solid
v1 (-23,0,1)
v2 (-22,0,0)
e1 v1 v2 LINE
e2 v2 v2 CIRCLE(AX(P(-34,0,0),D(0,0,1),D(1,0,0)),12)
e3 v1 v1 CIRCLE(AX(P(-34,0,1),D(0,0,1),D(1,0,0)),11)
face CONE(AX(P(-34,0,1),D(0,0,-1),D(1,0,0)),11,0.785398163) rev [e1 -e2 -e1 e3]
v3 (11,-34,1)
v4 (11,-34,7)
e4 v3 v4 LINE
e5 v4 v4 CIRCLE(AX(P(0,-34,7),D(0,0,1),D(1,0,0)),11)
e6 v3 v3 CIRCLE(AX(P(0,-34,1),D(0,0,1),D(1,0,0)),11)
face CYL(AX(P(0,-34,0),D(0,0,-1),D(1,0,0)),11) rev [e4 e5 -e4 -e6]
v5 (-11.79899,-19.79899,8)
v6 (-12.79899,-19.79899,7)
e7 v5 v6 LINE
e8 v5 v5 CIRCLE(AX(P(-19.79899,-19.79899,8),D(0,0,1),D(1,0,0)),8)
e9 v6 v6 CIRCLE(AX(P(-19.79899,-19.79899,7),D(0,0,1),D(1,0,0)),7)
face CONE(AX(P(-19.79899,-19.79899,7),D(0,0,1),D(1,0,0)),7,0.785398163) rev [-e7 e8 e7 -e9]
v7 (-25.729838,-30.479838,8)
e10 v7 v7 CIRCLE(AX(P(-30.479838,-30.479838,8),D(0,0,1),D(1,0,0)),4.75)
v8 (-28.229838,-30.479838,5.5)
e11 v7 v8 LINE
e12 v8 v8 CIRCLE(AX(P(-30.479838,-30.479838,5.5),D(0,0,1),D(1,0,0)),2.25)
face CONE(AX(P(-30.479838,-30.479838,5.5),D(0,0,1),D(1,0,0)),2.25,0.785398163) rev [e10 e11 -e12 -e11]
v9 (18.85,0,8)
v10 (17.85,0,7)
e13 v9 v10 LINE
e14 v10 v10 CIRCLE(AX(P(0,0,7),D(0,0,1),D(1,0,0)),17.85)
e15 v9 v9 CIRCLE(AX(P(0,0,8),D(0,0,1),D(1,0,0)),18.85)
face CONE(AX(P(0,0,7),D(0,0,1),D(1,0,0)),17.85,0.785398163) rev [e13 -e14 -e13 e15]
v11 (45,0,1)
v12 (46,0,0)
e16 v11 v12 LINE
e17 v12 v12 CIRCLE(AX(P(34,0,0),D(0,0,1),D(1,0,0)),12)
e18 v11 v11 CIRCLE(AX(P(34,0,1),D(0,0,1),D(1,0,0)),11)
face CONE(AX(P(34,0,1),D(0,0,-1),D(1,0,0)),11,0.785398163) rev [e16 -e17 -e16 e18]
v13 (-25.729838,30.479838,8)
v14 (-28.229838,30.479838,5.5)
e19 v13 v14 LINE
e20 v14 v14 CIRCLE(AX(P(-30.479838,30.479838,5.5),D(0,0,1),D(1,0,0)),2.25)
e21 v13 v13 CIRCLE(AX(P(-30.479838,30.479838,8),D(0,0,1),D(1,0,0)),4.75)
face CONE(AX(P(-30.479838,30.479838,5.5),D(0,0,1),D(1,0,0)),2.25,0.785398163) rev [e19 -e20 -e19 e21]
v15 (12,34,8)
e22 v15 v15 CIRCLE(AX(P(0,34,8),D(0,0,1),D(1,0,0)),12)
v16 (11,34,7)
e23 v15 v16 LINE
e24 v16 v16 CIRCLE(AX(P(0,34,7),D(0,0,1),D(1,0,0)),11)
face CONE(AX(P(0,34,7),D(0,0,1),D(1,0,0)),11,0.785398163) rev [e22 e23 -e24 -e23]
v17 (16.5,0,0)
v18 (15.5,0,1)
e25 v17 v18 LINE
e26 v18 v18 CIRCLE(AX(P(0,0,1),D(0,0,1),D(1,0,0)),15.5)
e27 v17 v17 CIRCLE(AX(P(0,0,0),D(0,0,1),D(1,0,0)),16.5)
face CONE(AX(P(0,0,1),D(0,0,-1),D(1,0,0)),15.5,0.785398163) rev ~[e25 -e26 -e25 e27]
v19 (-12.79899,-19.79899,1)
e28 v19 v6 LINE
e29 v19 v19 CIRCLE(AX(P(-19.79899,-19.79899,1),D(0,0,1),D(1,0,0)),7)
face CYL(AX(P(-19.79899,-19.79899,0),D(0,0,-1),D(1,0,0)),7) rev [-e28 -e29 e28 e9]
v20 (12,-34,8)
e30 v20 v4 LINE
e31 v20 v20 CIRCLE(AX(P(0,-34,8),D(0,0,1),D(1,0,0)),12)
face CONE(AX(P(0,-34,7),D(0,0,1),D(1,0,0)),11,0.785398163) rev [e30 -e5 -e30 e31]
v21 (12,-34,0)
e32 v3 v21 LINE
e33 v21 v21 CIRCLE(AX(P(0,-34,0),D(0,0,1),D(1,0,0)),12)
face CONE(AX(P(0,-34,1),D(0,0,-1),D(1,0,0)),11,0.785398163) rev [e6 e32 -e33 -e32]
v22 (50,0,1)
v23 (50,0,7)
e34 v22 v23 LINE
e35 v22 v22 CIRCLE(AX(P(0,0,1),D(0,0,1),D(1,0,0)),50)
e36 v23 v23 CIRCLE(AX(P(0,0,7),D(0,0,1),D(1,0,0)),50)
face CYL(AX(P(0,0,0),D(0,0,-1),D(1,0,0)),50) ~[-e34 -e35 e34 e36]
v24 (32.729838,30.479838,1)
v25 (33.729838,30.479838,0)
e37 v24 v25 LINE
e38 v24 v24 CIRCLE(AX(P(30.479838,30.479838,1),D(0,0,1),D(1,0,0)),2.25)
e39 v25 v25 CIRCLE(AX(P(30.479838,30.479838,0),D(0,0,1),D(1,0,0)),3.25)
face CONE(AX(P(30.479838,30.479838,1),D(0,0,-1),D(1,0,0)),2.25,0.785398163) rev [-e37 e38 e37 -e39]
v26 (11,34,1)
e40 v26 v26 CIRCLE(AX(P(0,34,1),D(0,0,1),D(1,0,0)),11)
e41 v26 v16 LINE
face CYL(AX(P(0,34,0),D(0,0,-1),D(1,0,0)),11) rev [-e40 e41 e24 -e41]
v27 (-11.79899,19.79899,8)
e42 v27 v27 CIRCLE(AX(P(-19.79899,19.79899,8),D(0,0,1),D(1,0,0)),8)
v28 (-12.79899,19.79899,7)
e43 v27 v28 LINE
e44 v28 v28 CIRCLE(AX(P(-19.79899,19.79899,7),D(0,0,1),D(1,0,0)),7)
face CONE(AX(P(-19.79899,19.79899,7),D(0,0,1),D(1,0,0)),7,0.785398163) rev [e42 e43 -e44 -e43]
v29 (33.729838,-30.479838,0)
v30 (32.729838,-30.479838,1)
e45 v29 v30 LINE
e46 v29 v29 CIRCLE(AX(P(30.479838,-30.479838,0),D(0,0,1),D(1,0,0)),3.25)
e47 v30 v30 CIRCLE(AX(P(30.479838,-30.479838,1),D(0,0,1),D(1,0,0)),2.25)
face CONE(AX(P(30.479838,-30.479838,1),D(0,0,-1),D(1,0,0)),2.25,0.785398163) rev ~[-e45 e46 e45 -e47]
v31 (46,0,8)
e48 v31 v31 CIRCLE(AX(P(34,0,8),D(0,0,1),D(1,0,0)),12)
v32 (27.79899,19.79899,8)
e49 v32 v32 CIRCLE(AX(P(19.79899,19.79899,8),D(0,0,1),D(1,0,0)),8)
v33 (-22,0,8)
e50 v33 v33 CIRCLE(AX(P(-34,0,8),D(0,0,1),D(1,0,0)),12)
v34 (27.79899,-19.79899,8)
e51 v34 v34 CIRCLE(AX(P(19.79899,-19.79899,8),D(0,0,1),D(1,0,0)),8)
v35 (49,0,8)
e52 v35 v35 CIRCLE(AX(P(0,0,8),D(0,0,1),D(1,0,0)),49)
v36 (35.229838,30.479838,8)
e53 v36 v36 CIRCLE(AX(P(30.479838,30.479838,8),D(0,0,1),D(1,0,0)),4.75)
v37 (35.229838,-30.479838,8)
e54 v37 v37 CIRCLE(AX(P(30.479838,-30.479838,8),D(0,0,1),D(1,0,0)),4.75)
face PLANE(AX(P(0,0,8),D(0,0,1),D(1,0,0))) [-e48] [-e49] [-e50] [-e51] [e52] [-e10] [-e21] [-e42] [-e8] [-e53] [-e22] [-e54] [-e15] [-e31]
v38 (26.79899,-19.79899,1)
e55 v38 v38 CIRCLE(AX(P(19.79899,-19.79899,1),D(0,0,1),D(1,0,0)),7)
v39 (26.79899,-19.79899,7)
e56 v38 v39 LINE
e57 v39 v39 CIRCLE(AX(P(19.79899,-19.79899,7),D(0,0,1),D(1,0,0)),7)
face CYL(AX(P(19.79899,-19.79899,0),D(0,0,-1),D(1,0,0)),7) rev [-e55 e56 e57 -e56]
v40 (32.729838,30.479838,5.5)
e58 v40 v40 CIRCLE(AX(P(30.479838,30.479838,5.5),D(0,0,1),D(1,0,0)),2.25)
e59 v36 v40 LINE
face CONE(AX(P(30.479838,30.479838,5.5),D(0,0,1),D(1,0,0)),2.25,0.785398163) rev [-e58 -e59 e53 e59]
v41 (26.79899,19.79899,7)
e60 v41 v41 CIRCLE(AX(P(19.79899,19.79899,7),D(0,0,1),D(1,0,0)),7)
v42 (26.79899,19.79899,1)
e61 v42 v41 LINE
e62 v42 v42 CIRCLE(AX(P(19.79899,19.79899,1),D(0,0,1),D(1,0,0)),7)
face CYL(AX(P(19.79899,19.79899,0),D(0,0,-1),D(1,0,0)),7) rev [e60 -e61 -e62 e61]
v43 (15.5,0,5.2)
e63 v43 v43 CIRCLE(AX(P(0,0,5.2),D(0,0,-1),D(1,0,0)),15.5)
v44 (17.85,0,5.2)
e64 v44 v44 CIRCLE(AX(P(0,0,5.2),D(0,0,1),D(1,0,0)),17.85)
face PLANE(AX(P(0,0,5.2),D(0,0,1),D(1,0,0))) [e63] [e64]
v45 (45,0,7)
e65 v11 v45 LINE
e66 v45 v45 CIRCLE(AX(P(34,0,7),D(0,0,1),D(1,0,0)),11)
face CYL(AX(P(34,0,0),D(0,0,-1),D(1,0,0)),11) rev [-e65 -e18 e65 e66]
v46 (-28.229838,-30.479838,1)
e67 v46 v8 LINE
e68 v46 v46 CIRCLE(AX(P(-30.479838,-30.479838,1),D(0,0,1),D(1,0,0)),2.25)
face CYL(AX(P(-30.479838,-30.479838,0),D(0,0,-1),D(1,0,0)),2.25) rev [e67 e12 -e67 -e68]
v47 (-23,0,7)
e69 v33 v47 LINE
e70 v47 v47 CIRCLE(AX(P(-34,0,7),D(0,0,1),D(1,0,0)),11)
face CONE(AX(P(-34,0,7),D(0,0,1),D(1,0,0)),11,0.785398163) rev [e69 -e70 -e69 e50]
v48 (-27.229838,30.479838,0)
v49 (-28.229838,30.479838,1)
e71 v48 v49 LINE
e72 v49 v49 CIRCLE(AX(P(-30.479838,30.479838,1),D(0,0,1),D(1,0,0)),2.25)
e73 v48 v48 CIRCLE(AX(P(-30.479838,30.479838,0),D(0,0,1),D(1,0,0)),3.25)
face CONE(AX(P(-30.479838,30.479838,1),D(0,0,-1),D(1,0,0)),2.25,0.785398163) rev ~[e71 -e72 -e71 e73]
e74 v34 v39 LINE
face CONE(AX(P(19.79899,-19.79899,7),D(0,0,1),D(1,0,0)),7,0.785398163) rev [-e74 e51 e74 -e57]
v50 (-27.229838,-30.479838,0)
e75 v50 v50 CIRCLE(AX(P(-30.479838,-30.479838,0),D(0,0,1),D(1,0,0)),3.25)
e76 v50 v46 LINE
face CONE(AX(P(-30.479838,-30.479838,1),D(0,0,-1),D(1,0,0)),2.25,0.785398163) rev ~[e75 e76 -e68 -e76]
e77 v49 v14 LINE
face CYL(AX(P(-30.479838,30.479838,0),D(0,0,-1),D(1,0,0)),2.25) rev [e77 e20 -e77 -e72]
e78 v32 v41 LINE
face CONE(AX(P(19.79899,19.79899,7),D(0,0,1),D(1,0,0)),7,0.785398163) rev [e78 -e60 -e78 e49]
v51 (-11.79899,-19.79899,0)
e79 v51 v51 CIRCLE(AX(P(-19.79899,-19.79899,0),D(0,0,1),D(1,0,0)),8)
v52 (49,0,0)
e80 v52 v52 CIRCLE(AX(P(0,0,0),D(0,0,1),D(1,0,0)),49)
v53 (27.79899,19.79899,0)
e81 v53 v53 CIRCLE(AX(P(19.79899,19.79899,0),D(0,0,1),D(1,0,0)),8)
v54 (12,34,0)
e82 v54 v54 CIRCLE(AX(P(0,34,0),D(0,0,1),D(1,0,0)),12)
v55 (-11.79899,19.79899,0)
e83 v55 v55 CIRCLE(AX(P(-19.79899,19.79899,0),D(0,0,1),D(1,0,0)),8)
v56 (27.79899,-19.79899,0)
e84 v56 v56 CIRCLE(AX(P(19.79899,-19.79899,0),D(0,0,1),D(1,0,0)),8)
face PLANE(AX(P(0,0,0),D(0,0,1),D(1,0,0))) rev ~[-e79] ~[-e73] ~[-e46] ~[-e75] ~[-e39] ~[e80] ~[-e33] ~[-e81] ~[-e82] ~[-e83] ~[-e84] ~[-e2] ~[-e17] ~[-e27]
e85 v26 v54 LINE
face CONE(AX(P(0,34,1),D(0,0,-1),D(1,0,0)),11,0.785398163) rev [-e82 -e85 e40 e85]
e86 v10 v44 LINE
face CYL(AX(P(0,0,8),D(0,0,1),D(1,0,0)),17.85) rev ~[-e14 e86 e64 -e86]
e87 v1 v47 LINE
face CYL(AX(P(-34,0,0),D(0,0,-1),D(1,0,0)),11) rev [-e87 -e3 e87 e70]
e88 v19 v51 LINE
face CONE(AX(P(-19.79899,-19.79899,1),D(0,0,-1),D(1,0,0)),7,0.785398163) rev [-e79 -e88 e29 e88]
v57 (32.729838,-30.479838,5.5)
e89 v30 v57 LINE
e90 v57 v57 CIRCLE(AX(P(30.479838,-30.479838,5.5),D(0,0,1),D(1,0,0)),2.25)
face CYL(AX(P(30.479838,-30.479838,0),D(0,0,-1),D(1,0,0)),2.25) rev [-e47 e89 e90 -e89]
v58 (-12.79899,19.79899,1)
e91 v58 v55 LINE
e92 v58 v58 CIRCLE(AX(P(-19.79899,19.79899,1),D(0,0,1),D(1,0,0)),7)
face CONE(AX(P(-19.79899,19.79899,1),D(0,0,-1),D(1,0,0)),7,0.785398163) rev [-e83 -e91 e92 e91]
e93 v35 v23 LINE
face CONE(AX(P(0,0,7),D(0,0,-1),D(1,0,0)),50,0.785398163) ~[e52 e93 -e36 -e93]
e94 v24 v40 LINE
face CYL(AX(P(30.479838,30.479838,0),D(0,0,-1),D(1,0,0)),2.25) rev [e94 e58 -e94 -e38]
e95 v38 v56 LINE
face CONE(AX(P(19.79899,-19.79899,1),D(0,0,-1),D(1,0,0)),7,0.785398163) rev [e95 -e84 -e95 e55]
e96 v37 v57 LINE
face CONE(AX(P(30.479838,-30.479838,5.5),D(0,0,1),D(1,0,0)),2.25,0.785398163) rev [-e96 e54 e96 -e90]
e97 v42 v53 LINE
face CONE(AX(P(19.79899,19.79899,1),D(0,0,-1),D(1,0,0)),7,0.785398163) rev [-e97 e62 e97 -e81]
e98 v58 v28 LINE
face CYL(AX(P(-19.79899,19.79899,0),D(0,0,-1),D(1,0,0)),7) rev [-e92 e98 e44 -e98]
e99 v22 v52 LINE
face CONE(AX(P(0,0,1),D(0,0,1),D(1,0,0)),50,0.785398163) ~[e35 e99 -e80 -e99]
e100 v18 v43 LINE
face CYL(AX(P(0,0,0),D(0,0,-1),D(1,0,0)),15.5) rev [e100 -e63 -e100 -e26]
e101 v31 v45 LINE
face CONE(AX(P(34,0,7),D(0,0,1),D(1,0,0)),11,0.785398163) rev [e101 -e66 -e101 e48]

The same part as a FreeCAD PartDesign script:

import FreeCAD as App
import Part
import Sketcher
from FreeCAD import Vector
Q = App.Units.Quantity


def edges_at(feature, points):
    """Names of the edges that pass closest to the given points."""
    edges = feature.Shape.Edges
    near = lambda p: min(range(len(edges)), key=lambda i: edges[i].distToShape(Part.Vertex(*p))[0])
    return sorted({f"Edge{near(p) + 1}" for p in points})

doc = App.newDocument("Part")
body = doc.addObject("PartDesign::Body", "Body")

# Sketch on XY plane
sketch1 = body.newObject("Sketcher::SketchObject", "Sketch")
sketch1.AttachmentSupport = (doc.getObject("XY_Plane"), [""])
sketch1.MapMode = "FlatFace"
sketch1.addGeometry(Part.Circle(Vector(0, 0, 0), Vector(0, 0, 1), 50), False)
sketch1.addGeometry(Part.Circle(Vector(-30.479838, -30.479838, 0), Vector(0, 0, 1), 2.25), False)
sketch1.addGeometry(Part.Circle(Vector(-19.79899, -19.79899, 0), Vector(0, 0, 1), 7), False)
sketch1.addGeometry(Part.Circle(Vector(0, -34, 0), Vector(0, 0, 1), 11), False)
sketch1.addGeometry(Part.Circle(Vector(30.479838, -30.479838, 0), Vector(0, 0, 1), 2.25), False)
sketch1.addGeometry(Part.Circle(Vector(19.79899, -19.79899, 0), Vector(0, 0, 1), 7), False)
sketch1.addGeometry(Part.Circle(Vector(-34, 0, 0), Vector(0, 0, 1), 11), False)
sketch1.addGeometry(Part.Circle(Vector(-19.79899, 19.79899, 0), Vector(0, 0, 1), 7), False)
sketch1.addGeometry(Part.Circle(Vector(-30.479838, 30.479838, 0), Vector(0, 0, 1), 2.25), False)
sketch1.addGeometry(Part.Circle(Vector(0, 0, 0), Vector(0, 0, 1), 15.5), False)
sketch1.addGeometry(Part.Circle(Vector(19.79899, 19.79899, 0), Vector(0, 0, 1), 7), False)
sketch1.addGeometry(Part.Circle(Vector(34, 0, 0), Vector(0, 0, 1), 11), False)
sketch1.addGeometry(Part.Circle(Vector(0, 34, 0), Vector(0, 0, 1), 11), False)
sketch1.addGeometry(Part.Circle(Vector(30.479838, 30.479838, 0), Vector(0, 0, 1), 2.25), False)
sketch1.addConstraint(Sketcher.Constraint("Coincident", 0, 3, -1, 1))
sketch1.addConstraint(Sketcher.Constraint("Coincident", 9, 3, -1, 1))
sketch1.addConstraint(Sketcher.Constraint("Equal", 1, 4))
sketch1.addConstraint(Sketcher.Constraint("Equal", 2, 5))
sketch1.addConstraint(Sketcher.Constraint("Equal", 3, 6))
sketch1.addConstraint(Sketcher.Constraint("Equal", 5, 7))
sketch1.addConstraint(Sketcher.Constraint("Equal", 4, 8))
sketch1.addConstraint(Sketcher.Constraint("Equal", 7, 10))
sketch1.addConstraint(Sketcher.Constraint("Equal", 6, 11))
sketch1.addConstraint(Sketcher.Constraint("Equal", 11, 12))
sketch1.addConstraint(Sketcher.Constraint("Equal", 8, 13))
sketch1.addConstraint(Sketcher.Constraint("Symmetric", 5, 3, 7, 3, -1, 1))
sketch1.addConstraint(Sketcher.Constraint("Symmetric", 4, 3, 8, 3, -1, 1))
sketch1.addConstraint(Sketcher.Constraint("Symmetric", 2, 3, 10, 3, -1, 1))
sketch1.addConstraint(Sketcher.Constraint("Symmetric", 6, 3, 11, 3, -1, 1))
sketch1.addConstraint(Sketcher.Constraint("Symmetric", 3, 3, 12, 3, -1, 1))
sketch1.addConstraint(Sketcher.Constraint("Symmetric", 1, 3, 13, 3, -1, 1))
sketch1.addConstraint(Sketcher.Constraint("Symmetric", 1, 3, 4, 3, -2))
sketch1.addConstraint(Sketcher.Constraint("Symmetric", 2, 3, 5, 3, -2))
sketch1.addConstraint(Sketcher.Constraint("PointOnObject", 3, 3, -2))
sketch1.addConstraint(Sketcher.Constraint("PointOnObject", 6, 3, -1))
sketch1.addConstraint(Sketcher.Constraint("Diameter", 0, Q("100 mm")))
sketch1.addConstraint(Sketcher.Constraint("Diameter", 2, Q("14 mm")))
sketch1.addConstraint(Sketcher.Constraint("Diameter", 3, Q("22 mm")))
sketch1.addConstraint(Sketcher.Constraint("Diameter", 9, Q("31 mm")))
sketch1.addConstraint(Sketcher.Constraint("Diameter", 1, Q("4.5 mm")))
sketch1.addConstraint(Sketcher.Constraint("DistanceY", 3, 3, -1, 1, Q("34 mm")))
sketch1.addConstraint(Sketcher.Constraint("DistanceX", 6, 3, -1, 1, Q("34 mm")))
sketch1.addConstraint(Sketcher.Constraint("DistanceX", 1, 3, -1, 1, Q("30.479838 mm")))
sketch1.addConstraint(Sketcher.Constraint("DistanceY", 1, 3, -1, 1, Q("30.479838 mm")))
sketch1.addConstraint(Sketcher.Constraint("DistanceX", 2, 3, -1, 1, Q("19.79899 mm")))
sketch1.addConstraint(Sketcher.Constraint("DistanceY", 2, 3, -1, 1, Q("19.79899 mm")))
pad1 = body.newObject("PartDesign::Pad", "Pad")
pad1.Profile = sketch1
pad1.Length = 8

# Sketch on XY plane
sketch2 = body.newObject("Sketcher::SketchObject", "Sketch001")
sketch2.AttachmentSupport = (doc.getObject("XY_Plane"), [""])
sketch2.MapMode = "FlatFace"
sketch2.AttachmentOffset = App.Placement(Vector(0, 0, 8), App.Rotation())
sketch2.addGeometry(Part.Circle(Vector(0, 0, 0), Vector(0, 0, 1), 17.85), False)
sketch2.addConstraint(Sketcher.Constraint("Coincident", 0, 3, -1, 1))
sketch2.addConstraint(Sketcher.Constraint("Diameter", 0, Q("35.7 mm")))
pocket1 = body.newObject("PartDesign::Pocket", "Pocket")
pocket1.Profile = sketch2
pocket1.Length = 2.8
doc.recompute()

chamfer = body.newObject("PartDesign::Chamfer", "Chamfer")
chamfer.Base = (pocket1, edges_at(pocket1, [
    (28.23, 30.48, 8),
    (28.23, -30.48, 8),
    (-32.73, -30.48, 8),
    (-32.73, 30.48, 8),
]))
chamfer.Size = 2.5
doc.recompute()

chamfer2 = body.newObject("PartDesign::Chamfer", "Chamfer001")
chamfer2.Base = (chamfer, edges_at(chamfer, [
    (-50, 0, 8),
    (12.799, 19.799, 8),
    (23, 0, 8),
    (12.799, -19.799, 8),
    (-11, -34, 8),
    (-26.799, -19.799, 8),
    (-45, 0, 8),
    (-26.799, 19.799, 8),
    (-17.85, 0, 8),
    (-50, 0, 0),
    (-15.5, 0, 0),
    (-45, 0, 0),
    (-11, 34, 0),
    (-11, -34, 0),
    (23, 0, 0),
    (-26.799, -19.799, 0),
    (12.799, 19.799, 0),
    (12.799, -19.799, 0),
    (-26.799, 19.799, 0),
    (-32.73, -30.48, 0),
    (28.23, -30.48, 0),
    (28.23, 30.48, 0),
    (-32.73, 30.48, 0),
    (-11, 34, 8),
]))
chamfer2.Size = 1

doc.recompute()
